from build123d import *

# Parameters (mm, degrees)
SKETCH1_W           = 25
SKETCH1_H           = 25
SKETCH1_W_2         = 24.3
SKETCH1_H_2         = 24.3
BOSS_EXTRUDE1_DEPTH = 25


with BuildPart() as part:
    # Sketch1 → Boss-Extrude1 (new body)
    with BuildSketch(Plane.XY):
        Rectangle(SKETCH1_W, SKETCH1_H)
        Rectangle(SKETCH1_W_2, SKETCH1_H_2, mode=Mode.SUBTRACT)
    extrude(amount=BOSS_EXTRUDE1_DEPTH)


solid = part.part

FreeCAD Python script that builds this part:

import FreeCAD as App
import Part
import Sketcher
from FreeCAD import Vector
Q = App.Units.Quantity

doc = App.newDocument("Part")
body = doc.addObject("PartDesign::Body", "Body")

# Sketch on XY plane
sketch1 = body.newObject("Sketcher::SketchObject", "Sketch")
sketch1.AttachmentSupport = (doc.getObject("XY_Plane"), [""])
sketch1.MapMode = "FlatFace"
sketch1.addGeometry(Part.LineSegment(Vector(-12, 12, 0), Vector(-12, -12, 0)), False)
sketch1.addGeometry(Part.LineSegment(Vector(-12, -12, 0), Vector(12, -12, 0)), False)
sketch1.addGeometry(Part.LineSegment(Vector(12, -12, 0), Vector(12, 12, 0)), False)
sketch1.addGeometry(Part.LineSegment(Vector(12, 12, 0), Vector(-12, 12, 0)), False)
sketch1.addGeometry(Part.LineSegment(Vector(12, -12, 0), Vector(-12, -12, 0)), False)
sketch1.addGeometry(Part.LineSegment(Vector(-12, -12, 0), Vector(-12, 12, 0)), False)
sketch1.addGeometry(Part.LineSegment(Vector(-12, 12, 0), Vector(12, 12, 0)), False)
sketch1.addGeometry(Part.LineSegment(Vector(12, 12, 0), Vector(12, -12, 0)), False)
sketch1.addConstraint(Sketcher.Constraint("Coincident", 0, 2, 1, 1))
sketch1.addConstraint(Sketcher.Constraint("Coincident", 1, 2, 2, 1))
sketch1.addConstraint(Sketcher.Constraint("Coincident", 2, 2, 3, 1))
sketch1.addConstraint(Sketcher.Constraint("Coincident", 3, 2, 0, 1))
sketch1.addConstraint(Sketcher.Constraint("Coincident", 4, 2, 5, 1))
sketch1.addConstraint(Sketcher.Constraint("Coincident", 5, 2, 6, 1))
sketch1.addConstraint(Sketcher.Constraint("Coincident", 6, 2, 7, 1))
sketch1.addConstraint(Sketcher.Constraint("Coincident", 7, 2, 4, 1))
sketch1.addConstraint(Sketcher.Constraint("Vertical", 0))
sketch1.addConstraint(Sketcher.Constraint("Horizontal", 1))
sketch1.addConstraint(Sketcher.Constraint("Vertical", 2))
sketch1.addConstraint(Sketcher.Constraint("Horizontal", 3))
sketch1.addConstraint(Sketcher.Constraint("Horizontal", 4))
sketch1.addConstraint(Sketcher.Constraint("Vertical", 5))
sketch1.addConstraint(Sketcher.Constraint("Horizontal", 6))
sketch1.addConstraint(Sketcher.Constraint("Vertical", 7))
sketch1.addConstraint(Sketcher.Constraint("Symmetric", 0, 2, 2, 2, -1, 1))
sketch1.addConstraint(Sketcher.Constraint("Symmetric", 4, 2, 6, 2, -1, 1))
sketch1.addConstraint(Sketcher.Constraint("Equal", 3, 0))
sketch1.addConstraint(Sketcher.Constraint("Equal", 6, 5))
sketch1.addConstraint(Sketcher.Constraint("DistanceX", 1, 1, 1, 2, Q("25 mm")))
sketch1.addConstraint(Sketcher.Constraint("DistanceX", 4, 2, 4, 1, Q("24.3 mm")))
pad1 = body.newObject("PartDesign::Pad", "Pad")
pad1.Profile = sketch1
pad1.Length = 25

doc.recompute()
